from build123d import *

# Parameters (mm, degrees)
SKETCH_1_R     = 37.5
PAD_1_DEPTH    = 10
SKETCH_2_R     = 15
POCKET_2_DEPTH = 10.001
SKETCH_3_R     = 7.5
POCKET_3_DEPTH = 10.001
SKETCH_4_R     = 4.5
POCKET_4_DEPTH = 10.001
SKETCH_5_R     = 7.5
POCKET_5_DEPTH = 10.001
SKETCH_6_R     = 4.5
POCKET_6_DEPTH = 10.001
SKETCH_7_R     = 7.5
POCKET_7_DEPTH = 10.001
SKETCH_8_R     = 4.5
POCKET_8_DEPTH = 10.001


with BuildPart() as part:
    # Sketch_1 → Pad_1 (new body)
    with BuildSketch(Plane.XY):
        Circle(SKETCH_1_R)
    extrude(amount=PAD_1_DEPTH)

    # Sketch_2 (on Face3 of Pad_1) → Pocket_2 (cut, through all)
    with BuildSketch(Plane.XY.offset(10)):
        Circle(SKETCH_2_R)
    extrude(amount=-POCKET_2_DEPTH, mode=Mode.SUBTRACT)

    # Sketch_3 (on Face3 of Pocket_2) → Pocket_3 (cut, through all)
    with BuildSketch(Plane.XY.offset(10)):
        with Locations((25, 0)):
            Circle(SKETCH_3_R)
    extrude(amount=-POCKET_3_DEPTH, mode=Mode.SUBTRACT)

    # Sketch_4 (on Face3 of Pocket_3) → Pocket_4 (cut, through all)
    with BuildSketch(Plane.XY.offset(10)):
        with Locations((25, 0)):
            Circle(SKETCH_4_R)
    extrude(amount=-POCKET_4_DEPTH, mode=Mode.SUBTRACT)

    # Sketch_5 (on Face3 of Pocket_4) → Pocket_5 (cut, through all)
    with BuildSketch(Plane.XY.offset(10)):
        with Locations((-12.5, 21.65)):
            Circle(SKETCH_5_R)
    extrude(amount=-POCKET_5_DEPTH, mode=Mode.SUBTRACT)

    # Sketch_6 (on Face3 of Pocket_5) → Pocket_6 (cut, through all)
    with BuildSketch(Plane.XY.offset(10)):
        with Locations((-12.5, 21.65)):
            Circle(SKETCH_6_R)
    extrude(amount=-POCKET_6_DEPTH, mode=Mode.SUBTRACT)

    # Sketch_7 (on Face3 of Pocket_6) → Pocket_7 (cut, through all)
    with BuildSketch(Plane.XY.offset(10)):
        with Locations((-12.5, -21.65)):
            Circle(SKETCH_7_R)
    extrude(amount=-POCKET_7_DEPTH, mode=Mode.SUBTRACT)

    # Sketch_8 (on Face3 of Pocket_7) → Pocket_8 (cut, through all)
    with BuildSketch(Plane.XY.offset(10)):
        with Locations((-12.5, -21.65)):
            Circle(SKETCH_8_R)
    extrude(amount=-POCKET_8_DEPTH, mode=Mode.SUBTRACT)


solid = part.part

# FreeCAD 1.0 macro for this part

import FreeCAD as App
import Part
import Sketcher
from FreeCAD import Vector

doc = App.newDocument("Part")
params = doc.addObject("Spreadsheet::Sheet", "Params")
for row, (alias, value) in enumerate([
    ("sketch1_diameter", "75 mm"),
    ("pad1_length", "10 mm"),
    ("sketch2_diameter", "30 mm"),
    ("sketch3_diameter", "15 mm"),
    ("sketch4_diameter", "9 mm"),
    ("sketch5_diameter", "15 mm"),
    ("sketch6_diameter", "9 mm"),
    ("sketch7_diameter", "15 mm"),
    ("sketch8_diameter", "9 mm"),
], start=1):
    params.set(f"A{row}", alias)
    params.set(f"B{row}", "=" + value)
    params.setAlias(f"B{row}", alias)

body = doc.addObject("PartDesign::Body", "Body")

# Sketch on XY plane
sketch1 = body.newObject("Sketcher::SketchObject", "Sketch")
sketch1.AttachmentSupport = (doc.getObject("XY_Plane"), [""])
sketch1.MapMode = "FlatFace"
sketch1.addGeometry(Part.Circle(Vector(0, 0, 0), Vector(0, 0, 1), 38), False)
sketch1.addConstraint(Sketcher.Constraint("Coincident", 0, 3, -1, 1))
sketch1.addConstraint(Sketcher.Constraint("Diameter", 0, 75.0))
sketch1.setExpression("Constraints[1]", "Params.sketch1_diameter")
pad1 = body.newObject("PartDesign::Pad", "Pad")
pad1.Profile = sketch1
pad1.setExpression("Length", "Params.pad1_length")

# Sketch on XY plane
sketch2 = body.newObject("Sketcher::SketchObject", "Sketch001")
sketch2.AttachmentSupport = (doc.getObject("XY_Plane"), [""])
sketch2.MapMode = "FlatFace"
sketch2.AttachmentOffset = App.Placement(Vector(0, 0, 10), App.Rotation())
sketch2.addGeometry(Part.Circle(Vector(0, 0, 0), Vector(0, 0, 1), 15), False)
sketch2.addConstraint(Sketcher.Constraint("Coincident", 0, 3, -1, 1))
sketch2.addConstraint(Sketcher.Constraint("Diameter", 0, 30.0))
sketch2.setExpression("Constraints[1]", "Params.sketch2_diameter")
pocket1 = body.newObject("PartDesign::Pocket", "Pocket")
pocket1.Profile = sketch2
pocket1.Type = "ThroughAll"

# Sketch on XY plane
sketch3 = body.newObject("Sketcher::SketchObject", "Sketch002")
sketch3.AttachmentSupport = (doc.getObject("XY_Plane"), [""])
sketch3.MapMode = "FlatFace"
sketch3.AttachmentOffset = App.Placement(Vector(0, 0, 10), App.Rotation())
sketch3.addGeometry(Part.Circle(Vector(25, 0, 0), Vector(0, 0, 1), 8), False)
sketch3.addConstraint(Sketcher.Constraint("PointOnObject", 0, 3, -1))
sketch3.addConstraint(Sketcher.Constraint("Diameter", 0, 15.0))
sketch3.addConstraint(Sketcher.Constraint("DistanceX", -1, 1, 0, 3, 25.0))
sketch3.setExpression("Constraints[1]", "Params.sketch3_diameter")
pocket2 = body.newObject("PartDesign::Pocket", "Pocket001")
pocket2.Profile = sketch3
pocket2.Type = "ThroughAll"

# Sketch on XY plane
sketch4 = body.newObject("Sketcher::SketchObject", "Sketch003")
sketch4.AttachmentSupport = (doc.getObject("XY_Plane"), [""])
sketch4.MapMode = "FlatFace"
sketch4.AttachmentOffset = App.Placement(Vector(0, 0, 10), App.Rotation())
sketch4.addGeometry(Part.Circle(Vector(25, 0, 0), Vector(0, 0, 1), 4.5), False)
sketch4.addConstraint(Sketcher.Constraint("PointOnObject", 0, 3, -1))
sketch4.addConstraint(Sketcher.Constraint("Diameter", 0, 9.0))
sketch4.addConstraint(Sketcher.Constraint("DistanceX", -1, 1, 0, 3, 25.0))
sketch4.setExpression("Constraints[1]", "Params.sketch4_diameter")
pocket3 = body.newObject("PartDesign::Pocket", "Pocket002")
pocket3.Profile = sketch4
pocket3.Type = "ThroughAll"

# Sketch on XY plane
sketch5 = body.newObject("Sketcher::SketchObject", "Sketch004")
sketch5.AttachmentSupport = (doc.getObject("XY_Plane"), [""])
sketch5.MapMode = "FlatFace"
sketch5.AttachmentOffset = App.Placement(Vector(0, 0, 10), App.Rotation())
sketch5.addGeometry(Part.Circle(Vector(-12, 22, 0), Vector(0, 0, 1), 8), False)
sketch5.addConstraint(Sketcher.Constraint("Diameter", 0, 15.0))
sketch5.addConstraint(Sketcher.Constraint("DistanceX", 0, 3, -1, 1, 12.5))
sketch5.addConstraint(Sketcher.Constraint("DistanceY", -1, 1, 0, 3, 21.65))
sketch5.setExpression("Constraints[0]", "Params.sketch5_diameter")
pocket4 = body.newObject("PartDesign::Pocket", "Pocket003")
pocket4.Profile = sketch5
pocket4.Type = "ThroughAll"

# Sketch on XY plane
sketch6 = body.newObject("Sketcher::SketchObject", "Sketch005")
sketch6.AttachmentSupport = (doc.getObject("XY_Plane"), [""])
sketch6.MapMode = "FlatFace"
sketch6.AttachmentOffset = App.Placement(Vector(0, 0, 10), App.Rotation())
sketch6.addGeometry(Part.Circle(Vector(-12.5, 21.6, 0), Vector(0, 0, 1), 4.5), False)
sketch6.addConstraint(Sketcher.Constraint("Diameter", 0, 9.0))
sketch6.addConstraint(Sketcher.Constraint("DistanceX", 0, 3, -1, 1, 12.5))
sketch6.addConstraint(Sketcher.Constraint("DistanceY", -1, 1, 0, 3, 21.65))
sketch6.setExpression("Constraints[0]", "Params.sketch6_diameter")
pocket5 = body.newObject("PartDesign::Pocket", "Pocket004")
pocket5.Profile = sketch6
pocket5.Type = "ThroughAll"

# Sketch on XY plane
sketch7 = body.newObject("Sketcher::SketchObject", "Sketch006")
sketch7.AttachmentSupport = (doc.getObject("XY_Plane"), [""])
sketch7.MapMode = "FlatFace"
sketch7.AttachmentOffset = App.Placement(Vector(0, 0, 10), App.Rotation())
sketch7.addGeometry(Part.Circle(Vector(-12, -22, 0), Vector(0, 0, 1), 8), False)
sketch7.addConstraint(Sketcher.Constraint("Diameter", 0, 15.0))
sketch7.addConstraint(Sketcher.Constraint("DistanceX", 0, 3, -1, 1, 12.5))
sketch7.addConstraint(Sketcher.Constraint("DistanceY", 0, 3, -1, 1, 21.65))
sketch7.setExpression("Constraints[0]", "Params.sketch7_diameter")
pocket6 = body.newObject("PartDesign::Pocket", "Pocket005")
pocket6.Profile = sketch7
pocket6.Type = "ThroughAll"

# Sketch on XY plane
sketch8 = body.newObject("Sketcher::SketchObject", "Sketch007")
sketch8.AttachmentSupport = (doc.getObject("XY_Plane"), [""])
sketch8.MapMode = "FlatFace"
sketch8.AttachmentOffset = App.Placement(Vector(0, 0, 10), App.Rotation())
sketch8.addGeometry(Part.Circle(Vector(-12.5, -21.6, 0), Vector(0, 0, 1), 4.5), False)
sketch8.addConstraint(Sketcher.Constraint("Diameter", 0, 9.0))
sketch8.addConstraint(Sketcher.Constraint("DistanceX", 0, 3, -1, 1, 12.5))
sketch8.addConstraint(Sketcher.Constraint("DistanceY", 0, 3, -1, 1, 21.65))
sketch8.setExpression("Constraints[0]", "Params.sketch8_diameter")
pocket7 = body.newObject("PartDesign::Pocket", "Pocket006")
pocket7.Profile = sketch8
pocket7.Type = "ThroughAll"

doc.recompute()
